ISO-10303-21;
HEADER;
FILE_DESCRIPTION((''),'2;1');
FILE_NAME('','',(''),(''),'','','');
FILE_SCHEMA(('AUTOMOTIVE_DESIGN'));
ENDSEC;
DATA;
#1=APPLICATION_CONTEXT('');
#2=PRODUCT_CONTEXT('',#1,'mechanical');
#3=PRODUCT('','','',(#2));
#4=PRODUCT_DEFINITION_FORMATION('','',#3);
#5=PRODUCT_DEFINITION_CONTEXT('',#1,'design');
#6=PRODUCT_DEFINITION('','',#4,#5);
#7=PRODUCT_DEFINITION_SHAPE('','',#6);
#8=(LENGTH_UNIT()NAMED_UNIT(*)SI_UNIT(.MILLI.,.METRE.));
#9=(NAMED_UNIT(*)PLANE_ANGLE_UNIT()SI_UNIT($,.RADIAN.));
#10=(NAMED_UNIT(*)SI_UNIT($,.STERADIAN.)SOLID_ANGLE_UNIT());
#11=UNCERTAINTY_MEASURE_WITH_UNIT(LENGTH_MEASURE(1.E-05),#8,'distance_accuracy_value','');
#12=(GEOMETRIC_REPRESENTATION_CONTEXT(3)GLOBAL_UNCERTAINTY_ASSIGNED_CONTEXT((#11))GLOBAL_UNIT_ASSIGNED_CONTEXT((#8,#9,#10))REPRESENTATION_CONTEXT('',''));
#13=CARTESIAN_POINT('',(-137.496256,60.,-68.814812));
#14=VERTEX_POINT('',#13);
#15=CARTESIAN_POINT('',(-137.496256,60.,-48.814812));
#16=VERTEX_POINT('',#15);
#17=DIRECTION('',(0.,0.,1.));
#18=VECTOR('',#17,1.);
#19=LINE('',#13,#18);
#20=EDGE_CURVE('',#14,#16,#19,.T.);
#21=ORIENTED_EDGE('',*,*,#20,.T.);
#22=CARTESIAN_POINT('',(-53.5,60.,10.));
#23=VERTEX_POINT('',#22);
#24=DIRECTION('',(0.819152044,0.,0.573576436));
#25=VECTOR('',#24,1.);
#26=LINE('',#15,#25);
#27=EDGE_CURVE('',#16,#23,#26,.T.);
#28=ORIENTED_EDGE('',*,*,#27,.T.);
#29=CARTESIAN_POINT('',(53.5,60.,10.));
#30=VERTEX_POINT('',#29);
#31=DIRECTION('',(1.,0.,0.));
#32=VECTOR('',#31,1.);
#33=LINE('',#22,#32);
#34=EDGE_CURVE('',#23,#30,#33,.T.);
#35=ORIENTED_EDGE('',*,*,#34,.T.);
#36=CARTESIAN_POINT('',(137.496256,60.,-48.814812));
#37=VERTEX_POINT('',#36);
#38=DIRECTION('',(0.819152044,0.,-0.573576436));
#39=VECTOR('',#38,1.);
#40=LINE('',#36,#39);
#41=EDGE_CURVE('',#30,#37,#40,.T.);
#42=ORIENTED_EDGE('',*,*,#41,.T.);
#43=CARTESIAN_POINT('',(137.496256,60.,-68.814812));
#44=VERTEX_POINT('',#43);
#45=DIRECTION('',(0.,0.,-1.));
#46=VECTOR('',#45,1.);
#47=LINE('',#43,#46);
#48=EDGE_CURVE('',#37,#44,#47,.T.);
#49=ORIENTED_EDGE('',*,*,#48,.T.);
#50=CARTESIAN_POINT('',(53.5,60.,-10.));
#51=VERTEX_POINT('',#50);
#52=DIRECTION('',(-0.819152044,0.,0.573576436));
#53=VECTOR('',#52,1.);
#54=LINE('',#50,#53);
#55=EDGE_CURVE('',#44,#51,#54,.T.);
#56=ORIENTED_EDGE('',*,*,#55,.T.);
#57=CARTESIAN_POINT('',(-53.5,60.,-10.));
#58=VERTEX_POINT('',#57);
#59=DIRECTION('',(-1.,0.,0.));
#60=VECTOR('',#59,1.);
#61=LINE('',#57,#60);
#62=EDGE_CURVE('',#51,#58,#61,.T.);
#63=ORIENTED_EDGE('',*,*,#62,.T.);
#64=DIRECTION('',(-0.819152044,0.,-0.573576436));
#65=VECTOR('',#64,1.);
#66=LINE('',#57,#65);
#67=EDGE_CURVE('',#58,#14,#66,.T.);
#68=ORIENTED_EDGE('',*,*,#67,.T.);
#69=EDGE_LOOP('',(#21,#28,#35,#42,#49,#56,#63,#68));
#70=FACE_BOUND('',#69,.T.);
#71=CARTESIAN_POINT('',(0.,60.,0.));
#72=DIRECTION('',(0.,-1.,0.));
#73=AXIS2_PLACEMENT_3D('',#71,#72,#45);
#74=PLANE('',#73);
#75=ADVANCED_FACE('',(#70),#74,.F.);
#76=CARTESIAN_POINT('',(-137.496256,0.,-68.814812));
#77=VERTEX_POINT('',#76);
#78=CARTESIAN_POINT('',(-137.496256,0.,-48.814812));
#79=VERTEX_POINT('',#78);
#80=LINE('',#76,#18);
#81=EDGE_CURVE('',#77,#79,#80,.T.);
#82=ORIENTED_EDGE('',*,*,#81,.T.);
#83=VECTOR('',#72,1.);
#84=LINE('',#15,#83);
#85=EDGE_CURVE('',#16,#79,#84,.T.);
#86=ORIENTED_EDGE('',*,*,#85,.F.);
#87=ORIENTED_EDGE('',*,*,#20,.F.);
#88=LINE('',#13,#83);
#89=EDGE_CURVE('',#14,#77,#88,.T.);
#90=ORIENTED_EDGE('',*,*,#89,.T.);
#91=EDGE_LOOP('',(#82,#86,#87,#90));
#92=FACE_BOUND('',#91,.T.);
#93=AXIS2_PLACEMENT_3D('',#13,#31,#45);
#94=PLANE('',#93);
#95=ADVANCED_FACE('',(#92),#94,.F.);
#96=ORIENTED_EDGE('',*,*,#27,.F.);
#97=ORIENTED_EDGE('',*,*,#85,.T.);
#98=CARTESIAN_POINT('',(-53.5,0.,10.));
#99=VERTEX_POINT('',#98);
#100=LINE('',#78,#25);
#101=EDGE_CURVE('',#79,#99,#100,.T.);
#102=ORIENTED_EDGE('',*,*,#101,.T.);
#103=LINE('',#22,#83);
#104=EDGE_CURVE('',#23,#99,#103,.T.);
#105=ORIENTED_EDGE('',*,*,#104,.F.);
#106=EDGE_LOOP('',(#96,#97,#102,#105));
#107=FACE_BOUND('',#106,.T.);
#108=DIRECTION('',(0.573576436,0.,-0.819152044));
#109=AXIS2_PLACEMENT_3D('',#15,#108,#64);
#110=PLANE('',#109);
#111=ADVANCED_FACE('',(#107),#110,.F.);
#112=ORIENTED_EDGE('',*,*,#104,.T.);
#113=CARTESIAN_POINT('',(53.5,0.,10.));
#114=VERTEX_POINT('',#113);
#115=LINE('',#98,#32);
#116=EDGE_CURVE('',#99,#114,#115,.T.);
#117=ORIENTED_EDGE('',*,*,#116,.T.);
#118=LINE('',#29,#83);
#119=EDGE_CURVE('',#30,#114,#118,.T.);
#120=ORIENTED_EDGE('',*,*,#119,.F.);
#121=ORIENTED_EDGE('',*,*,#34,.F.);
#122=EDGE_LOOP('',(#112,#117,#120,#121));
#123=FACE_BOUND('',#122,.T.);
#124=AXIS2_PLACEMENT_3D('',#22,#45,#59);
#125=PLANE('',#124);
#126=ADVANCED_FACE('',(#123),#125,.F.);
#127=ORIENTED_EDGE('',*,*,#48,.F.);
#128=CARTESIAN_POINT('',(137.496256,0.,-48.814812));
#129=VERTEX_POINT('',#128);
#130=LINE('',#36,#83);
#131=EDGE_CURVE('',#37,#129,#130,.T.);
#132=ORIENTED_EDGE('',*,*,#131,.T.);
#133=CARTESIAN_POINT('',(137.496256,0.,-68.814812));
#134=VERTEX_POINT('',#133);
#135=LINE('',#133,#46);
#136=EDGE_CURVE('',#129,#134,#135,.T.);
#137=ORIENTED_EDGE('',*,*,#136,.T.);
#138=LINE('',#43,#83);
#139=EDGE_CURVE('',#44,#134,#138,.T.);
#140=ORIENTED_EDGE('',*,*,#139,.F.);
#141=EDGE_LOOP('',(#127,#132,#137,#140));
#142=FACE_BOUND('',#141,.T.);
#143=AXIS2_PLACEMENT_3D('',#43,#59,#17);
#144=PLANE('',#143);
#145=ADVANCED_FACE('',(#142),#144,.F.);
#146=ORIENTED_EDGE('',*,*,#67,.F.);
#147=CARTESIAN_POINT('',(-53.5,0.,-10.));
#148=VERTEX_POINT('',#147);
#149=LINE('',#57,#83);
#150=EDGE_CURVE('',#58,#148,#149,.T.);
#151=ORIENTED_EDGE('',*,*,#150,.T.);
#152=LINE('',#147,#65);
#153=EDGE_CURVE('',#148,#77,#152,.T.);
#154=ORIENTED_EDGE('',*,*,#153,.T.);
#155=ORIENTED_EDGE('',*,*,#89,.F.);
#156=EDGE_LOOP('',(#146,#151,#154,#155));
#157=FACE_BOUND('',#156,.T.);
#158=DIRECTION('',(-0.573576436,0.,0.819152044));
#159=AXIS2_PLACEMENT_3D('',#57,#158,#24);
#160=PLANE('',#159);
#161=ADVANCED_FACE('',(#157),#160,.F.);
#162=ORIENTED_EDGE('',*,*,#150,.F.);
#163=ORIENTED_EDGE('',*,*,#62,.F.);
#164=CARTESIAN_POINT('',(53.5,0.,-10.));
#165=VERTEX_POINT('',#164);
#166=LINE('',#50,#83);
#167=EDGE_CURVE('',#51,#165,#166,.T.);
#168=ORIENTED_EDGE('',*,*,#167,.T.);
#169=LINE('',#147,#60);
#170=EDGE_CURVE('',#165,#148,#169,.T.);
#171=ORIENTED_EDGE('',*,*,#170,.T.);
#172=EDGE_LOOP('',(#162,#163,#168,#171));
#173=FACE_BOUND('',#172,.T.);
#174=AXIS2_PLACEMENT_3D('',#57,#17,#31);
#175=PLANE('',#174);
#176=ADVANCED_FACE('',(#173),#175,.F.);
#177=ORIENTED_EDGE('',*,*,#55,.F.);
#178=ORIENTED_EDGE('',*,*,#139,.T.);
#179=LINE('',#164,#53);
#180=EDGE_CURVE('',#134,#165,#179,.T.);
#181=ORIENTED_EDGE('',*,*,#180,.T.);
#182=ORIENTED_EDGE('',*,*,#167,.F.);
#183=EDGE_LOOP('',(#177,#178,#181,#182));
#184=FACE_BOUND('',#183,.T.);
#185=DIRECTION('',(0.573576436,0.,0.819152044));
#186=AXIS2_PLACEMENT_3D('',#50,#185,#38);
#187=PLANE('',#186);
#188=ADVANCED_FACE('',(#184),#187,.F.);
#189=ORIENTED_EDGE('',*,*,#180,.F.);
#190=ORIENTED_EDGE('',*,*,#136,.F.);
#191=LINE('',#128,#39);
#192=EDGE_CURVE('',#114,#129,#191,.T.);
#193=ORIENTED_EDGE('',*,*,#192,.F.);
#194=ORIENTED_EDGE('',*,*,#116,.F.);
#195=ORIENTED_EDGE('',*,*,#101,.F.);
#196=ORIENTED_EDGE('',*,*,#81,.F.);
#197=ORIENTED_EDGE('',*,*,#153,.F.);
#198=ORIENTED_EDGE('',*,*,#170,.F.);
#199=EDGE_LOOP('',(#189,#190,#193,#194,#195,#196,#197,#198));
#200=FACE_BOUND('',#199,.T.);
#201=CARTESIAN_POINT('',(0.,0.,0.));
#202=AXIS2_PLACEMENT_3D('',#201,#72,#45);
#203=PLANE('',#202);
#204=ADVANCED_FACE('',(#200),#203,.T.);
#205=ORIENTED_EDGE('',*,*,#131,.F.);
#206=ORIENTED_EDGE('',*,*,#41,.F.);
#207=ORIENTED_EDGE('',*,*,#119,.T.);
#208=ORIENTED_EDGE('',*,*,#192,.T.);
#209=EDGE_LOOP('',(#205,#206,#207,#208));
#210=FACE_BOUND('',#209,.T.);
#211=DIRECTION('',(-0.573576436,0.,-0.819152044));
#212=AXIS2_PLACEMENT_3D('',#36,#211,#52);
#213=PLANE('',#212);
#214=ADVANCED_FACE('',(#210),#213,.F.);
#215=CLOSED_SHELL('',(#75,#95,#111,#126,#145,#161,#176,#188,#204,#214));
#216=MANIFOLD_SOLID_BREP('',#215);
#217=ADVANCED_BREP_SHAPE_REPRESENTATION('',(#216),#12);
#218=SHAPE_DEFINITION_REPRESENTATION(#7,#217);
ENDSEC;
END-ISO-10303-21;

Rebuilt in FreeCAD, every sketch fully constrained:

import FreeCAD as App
import Part
import Sketcher
Q = App.Units.Quantity


def add_polygon(sketch, points):
    """Adds a closed chain of lines whose ends are joined by coincident constraints."""
    first, n = sketch.GeometryCount, len(points)
    for a, b in zip(points, points[1:] + points[:1]):
        sketch.addGeometry(Part.LineSegment(App.Vector(*a, 0), App.Vector(*b, 0)), False)
    for i in range(n):
        sketch.addConstraint(Sketcher.Constraint("Coincident", first + i, 2, first + (i + 1) % n, 1))

doc = App.newDocument("Part")
body = doc.addObject("PartDesign::Body", "Body")

sketch1 = doc.addObject("Sketcher::SketchObject", "Sketch")
body.addObject(sketch1)
sketch1.AttachmentSupport = (doc.XZ_Plane, [""])
sketch1.MapMode = "FlatFace"
add_polygon(sketch1, [(-53.5, -10), (-137.496256, -68.814812), (-137.496256, -48.814812), (-53.5, 10), (53.5, 10), (137.496256, -48.814812), (137.496256, -68.814812), (53.5, -10)])
sketch1.addConstraint(Sketcher.Constraint("Vertical", 1))
sketch1.addConstraint(Sketcher.Constraint("Horizontal", 3))
sketch1.addConstraint(Sketcher.Constraint("Vertical", 5))
sketch1.addConstraint(Sketcher.Constraint("Horizontal", 7))
sketch1.addConstraint(Sketcher.Constraint("Symmetric", 2, 2, 6, 2, -1, 1))
sketch1.addConstraint(Sketcher.Constraint("Symmetric", 1, 2, 4, 2, -2))
sketch1.addConstraint(Sketcher.Constraint("Parallel", 0, 2))
sketch1.addConstraint(Sketcher.Constraint("Parallel", 4, 6))
sketch1.addConstraint(Sketcher.Constraint("Horizontal", 0, 2, 5, 2))
sketch1.addConstraint(Sketcher.Constraint("Vertical", 3, 2, 6, 2))
sketch1.addConstraint(Sketcher.Constraint("DistanceX", 3, 1, 3, 2, Q("107 mm")))
sketch1.addConstraint(Sketcher.Constraint("DistanceY", 1, 1, 1, 2, Q("20 mm")))
sketch1.addConstraint(Sketcher.Constraint("Angle", 0, Q("-145 deg")))
sketch1.addConstraint(Sketcher.Constraint("DistanceY", 0, 2, -1, 1, Q("68.814812 mm")))
pad1 = doc.addObject("PartDesign::Pad", "Pad")
body.addObject(pad1)
pad1.Profile = sketch1
pad1.Length = 60
pad1.Reversed = True

doc.recompute()
